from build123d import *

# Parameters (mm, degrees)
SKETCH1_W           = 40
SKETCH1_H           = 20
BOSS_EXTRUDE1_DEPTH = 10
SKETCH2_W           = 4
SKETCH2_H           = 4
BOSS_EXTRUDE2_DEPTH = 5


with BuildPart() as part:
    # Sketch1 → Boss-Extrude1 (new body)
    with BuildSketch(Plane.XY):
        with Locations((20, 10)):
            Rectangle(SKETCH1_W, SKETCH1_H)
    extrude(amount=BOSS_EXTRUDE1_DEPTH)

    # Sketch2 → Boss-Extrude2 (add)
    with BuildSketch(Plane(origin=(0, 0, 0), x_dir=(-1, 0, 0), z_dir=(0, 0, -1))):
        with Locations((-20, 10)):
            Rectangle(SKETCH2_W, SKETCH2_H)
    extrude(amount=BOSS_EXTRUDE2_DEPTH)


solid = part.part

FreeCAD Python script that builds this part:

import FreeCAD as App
import Part
import Sketcher
from FreeCAD import Vector


def add_polygon(sketch, points):
    """Adds a closed chain of lines whose ends are joined by coincident constraints."""
    first, n = sketch.GeometryCount, len(points)
    for a, b in zip(points, points[1:] + points[:1]):
        sketch.addGeometry(Part.LineSegment(App.Vector(*a, 0), App.Vector(*b, 0)), False)
    for i in range(n):
        sketch.addConstraint(Sketcher.Constraint("Coincident", first + i, 2, first + (i + 1) % n, 1))

doc = App.newDocument("Part")
body = doc.addObject("PartDesign::Body", "Body")

sketch1 = doc.addObject("Sketcher::SketchObject", "Sketch")
body.addObject(sketch1)
sketch1.AttachmentSupport = (doc.XY_Plane, [""])
sketch1.MapMode = "FlatFace"
add_polygon(sketch1, [(0, 20), (0, 0), (40, 0), (40, 20)])
sketch1.addConstraint(Sketcher.Constraint("Vertical", 0))
sketch1.addConstraint(Sketcher.Constraint("Horizontal", 1))
sketch1.addConstraint(Sketcher.Constraint("Vertical", 2))
sketch1.addConstraint(Sketcher.Constraint("Horizontal", 3))
sketch1.addConstraint(Sketcher.Constraint("Coincident", 0, 2, -1, 1))
sketch1.addConstraint(Sketcher.Constraint("DistanceX", 1, 1, 1, 2, 40.0))
sketch1.addConstraint(Sketcher.Constraint("DistanceY", 0, 2, 0, 1, 20.0))
pad1 = doc.addObject("PartDesign::Pad", "Pad")
body.addObject(pad1)
pad1.Profile = sketch1
pad1.Length = 10

sketch2 = doc.addObject("Sketcher::SketchObject", "Sketch001")
body.addObject(sketch2)
sketch2.AttachmentSupport = (doc.XY_Plane, [""])
sketch2.MapMode = "FlatFace"
add_polygon(sketch2, [(22, 12), (22, 8), (18, 8), (18, 12)])
sketch2.addConstraint(Sketcher.Constraint("Vertical", 0))
sketch2.addConstraint(Sketcher.Constraint("Horizontal", 1))
sketch2.addConstraint(Sketcher.Constraint("Vertical", 2))
sketch2.addConstraint(Sketcher.Constraint("Horizontal", 3))
sketch2.addConstraint(Sketcher.Constraint("Equal", 3, 0))
sketch2.addConstraint(Sketcher.Constraint("DistanceX", 1, 2, 1, 1, 4.0))
sketch2.addConstraint(Sketcher.Constraint("DistanceX", -1, 1, 0, 2, 22.0))
sketch2.addConstraint(Sketcher.Constraint("DistanceY", -1, 1, 0, 2, 8.0))
pad2 = doc.addObject("PartDesign::Pad", "Pad001")
body.addObject(pad2)
pad2.Profile = sketch2
pad2.Length = 5
pad2.Reversed = True

doc.recompute()
